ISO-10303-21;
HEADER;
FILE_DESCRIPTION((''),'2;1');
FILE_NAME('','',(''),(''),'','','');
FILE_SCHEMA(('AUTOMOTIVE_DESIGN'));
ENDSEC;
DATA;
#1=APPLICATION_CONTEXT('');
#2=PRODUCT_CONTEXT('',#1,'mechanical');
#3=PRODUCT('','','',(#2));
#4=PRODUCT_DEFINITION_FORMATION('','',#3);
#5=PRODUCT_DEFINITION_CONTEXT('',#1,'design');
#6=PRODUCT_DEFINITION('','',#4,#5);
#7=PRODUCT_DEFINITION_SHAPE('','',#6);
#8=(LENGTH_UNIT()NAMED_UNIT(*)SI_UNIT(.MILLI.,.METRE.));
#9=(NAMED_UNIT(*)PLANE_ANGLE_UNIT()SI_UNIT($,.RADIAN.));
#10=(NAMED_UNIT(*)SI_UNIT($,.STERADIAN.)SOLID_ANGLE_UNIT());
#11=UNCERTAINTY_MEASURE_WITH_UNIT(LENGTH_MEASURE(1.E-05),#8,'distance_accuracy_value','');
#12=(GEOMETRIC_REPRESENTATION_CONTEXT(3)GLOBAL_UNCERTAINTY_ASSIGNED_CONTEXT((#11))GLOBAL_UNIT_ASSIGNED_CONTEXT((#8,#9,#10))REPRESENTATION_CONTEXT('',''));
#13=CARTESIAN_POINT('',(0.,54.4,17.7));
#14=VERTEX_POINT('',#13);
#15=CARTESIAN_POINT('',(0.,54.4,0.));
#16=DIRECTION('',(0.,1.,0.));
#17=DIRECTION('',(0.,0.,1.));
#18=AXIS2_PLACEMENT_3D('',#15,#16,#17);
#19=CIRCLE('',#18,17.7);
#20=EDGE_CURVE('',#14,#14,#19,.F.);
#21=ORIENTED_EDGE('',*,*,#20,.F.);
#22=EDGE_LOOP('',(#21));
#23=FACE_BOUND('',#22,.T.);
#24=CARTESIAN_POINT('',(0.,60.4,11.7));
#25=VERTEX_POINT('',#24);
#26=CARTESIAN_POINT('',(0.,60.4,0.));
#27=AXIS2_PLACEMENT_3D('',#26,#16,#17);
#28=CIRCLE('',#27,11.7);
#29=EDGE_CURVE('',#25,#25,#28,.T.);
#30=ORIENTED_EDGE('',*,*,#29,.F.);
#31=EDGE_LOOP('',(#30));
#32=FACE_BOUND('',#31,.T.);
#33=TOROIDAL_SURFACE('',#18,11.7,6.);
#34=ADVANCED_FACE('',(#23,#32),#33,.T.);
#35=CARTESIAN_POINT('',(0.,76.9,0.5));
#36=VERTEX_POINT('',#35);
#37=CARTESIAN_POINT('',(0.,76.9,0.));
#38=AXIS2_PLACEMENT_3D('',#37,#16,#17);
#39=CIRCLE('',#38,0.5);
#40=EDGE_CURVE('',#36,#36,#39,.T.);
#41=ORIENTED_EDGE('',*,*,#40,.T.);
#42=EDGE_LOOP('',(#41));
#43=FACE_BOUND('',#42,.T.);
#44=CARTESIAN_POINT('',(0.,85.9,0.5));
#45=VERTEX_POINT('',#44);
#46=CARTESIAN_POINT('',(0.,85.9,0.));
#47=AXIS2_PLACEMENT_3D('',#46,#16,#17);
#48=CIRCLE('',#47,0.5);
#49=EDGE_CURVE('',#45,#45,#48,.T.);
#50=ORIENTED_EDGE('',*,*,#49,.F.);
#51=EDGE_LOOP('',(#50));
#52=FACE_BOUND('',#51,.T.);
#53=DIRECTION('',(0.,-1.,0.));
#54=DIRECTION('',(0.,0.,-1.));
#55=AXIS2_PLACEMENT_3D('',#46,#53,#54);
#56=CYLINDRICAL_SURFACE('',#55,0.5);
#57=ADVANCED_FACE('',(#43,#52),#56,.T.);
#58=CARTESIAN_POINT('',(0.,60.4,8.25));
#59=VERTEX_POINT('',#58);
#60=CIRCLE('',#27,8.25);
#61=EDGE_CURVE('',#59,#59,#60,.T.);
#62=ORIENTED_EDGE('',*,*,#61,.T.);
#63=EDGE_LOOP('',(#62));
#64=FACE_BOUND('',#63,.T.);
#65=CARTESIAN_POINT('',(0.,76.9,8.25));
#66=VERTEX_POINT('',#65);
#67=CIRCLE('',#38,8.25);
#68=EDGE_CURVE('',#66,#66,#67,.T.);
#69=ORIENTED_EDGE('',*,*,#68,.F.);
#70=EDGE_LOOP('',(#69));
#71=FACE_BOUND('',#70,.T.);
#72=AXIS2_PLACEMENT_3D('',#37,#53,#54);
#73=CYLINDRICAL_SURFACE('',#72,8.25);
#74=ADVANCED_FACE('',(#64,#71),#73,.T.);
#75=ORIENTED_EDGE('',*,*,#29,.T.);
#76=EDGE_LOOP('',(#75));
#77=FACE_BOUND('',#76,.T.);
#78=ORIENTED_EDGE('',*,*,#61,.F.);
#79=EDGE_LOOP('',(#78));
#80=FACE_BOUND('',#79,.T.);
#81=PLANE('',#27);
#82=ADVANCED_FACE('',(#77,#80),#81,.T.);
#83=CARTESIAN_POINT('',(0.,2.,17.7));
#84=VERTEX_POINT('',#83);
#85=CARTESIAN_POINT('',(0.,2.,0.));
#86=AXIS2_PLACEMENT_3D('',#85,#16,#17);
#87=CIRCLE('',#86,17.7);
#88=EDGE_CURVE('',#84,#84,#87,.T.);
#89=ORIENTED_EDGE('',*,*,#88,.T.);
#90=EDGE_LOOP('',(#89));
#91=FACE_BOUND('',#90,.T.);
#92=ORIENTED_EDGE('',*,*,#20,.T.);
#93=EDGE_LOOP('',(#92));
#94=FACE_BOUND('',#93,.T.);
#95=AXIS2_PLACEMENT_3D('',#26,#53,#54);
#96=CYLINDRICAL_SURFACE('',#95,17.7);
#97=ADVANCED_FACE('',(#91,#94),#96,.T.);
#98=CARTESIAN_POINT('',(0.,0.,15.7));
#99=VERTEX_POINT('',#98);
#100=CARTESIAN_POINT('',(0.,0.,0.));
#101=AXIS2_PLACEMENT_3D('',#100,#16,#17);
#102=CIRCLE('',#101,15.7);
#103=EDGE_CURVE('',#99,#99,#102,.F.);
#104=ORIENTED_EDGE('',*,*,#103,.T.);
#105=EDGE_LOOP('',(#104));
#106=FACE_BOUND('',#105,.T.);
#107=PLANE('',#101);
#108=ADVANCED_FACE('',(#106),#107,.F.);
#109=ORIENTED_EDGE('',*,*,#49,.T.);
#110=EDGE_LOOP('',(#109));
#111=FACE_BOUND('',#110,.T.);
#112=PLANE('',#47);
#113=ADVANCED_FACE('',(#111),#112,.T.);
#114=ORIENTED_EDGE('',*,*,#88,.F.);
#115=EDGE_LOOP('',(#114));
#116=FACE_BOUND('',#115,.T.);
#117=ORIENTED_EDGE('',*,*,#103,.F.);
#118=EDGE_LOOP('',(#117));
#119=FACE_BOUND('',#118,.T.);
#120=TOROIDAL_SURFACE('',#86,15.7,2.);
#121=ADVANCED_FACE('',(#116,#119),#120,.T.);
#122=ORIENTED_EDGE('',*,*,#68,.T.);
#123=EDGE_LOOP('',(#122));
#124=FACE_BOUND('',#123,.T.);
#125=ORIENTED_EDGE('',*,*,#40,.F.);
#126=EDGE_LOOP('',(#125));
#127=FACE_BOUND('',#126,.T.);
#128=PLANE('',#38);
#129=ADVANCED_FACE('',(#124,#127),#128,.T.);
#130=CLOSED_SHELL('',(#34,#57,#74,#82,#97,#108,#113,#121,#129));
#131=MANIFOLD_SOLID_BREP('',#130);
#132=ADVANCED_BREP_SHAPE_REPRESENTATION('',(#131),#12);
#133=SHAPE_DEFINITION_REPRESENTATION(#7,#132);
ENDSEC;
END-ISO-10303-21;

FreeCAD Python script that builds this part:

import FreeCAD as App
import Part
import Sketcher


def edges_at(feature, points):
    """Names of the edges that pass closest to the given points."""
    edges = feature.Shape.Edges
    near = lambda p: min(range(len(edges)), key=lambda i: edges[i].distToShape(Part.Vertex(*p))[0])
    return sorted({f"Edge{near(p) + 1}" for p in points})

doc = App.newDocument("Part")
body = doc.addObject("PartDesign::Body", "Body")

# Sketch on XZ plane
sketch1 = body.newObject("Sketcher::SketchObject", "Sketch")
sketch1.AttachmentSupport = (doc.getObject("XZ_Plane"), [""])
sketch1.MapMode = "FlatFace"
sketch1.addGeometry(Part.Circle(App.Vector(0, 0, 0), App.Vector(0, 0, 1), 18), False)
sketch1.addConstraint(Sketcher.Constraint("Coincident", 0, 3, -1, 1))
sketch1.addConstraint(Sketcher.Constraint("Diameter", 0, 35.4))
pad1 = body.newObject("PartDesign::Pad", "Pad")
pad1.Profile = sketch1
pad1.Length = 60.4
pad1.Reversed = True
doc.recompute()

fillet = body.newObject("PartDesign::Fillet", "Fillet")
fillet.Base = (pad1, edges_at(pad1, [(-17.7, 60.4, 0)]))
fillet.Radius = 6
doc.recompute()

fillet2 = body.newObject("PartDesign::Fillet", "Fillet001")
fillet2.Base = (fillet, edges_at(fillet, [(-17.7, 0, 0)]))
fillet2.Radius = 2

# Sketch on XZ plane
sketch2 = body.newObject("Sketcher::SketchObject", "Sketch001")
sketch2.AttachmentSupport = (doc.getObject("XZ_Plane"), [""])
sketch2.MapMode = "FlatFace"
sketch2.AttachmentOffset = App.Placement(App.Vector(0, 0, -60.4), App.Rotation())
sketch2.addGeometry(Part.Circle(App.Vector(0, 0, 0), App.Vector(0, 0, 1), 8), False)
sketch2.addConstraint(Sketcher.Constraint("Coincident", 0, 3, -1, 1))
sketch2.addConstraint(Sketcher.Constraint("Diameter", 0, 16.5))
pad2 = body.newObject("PartDesign::Pad", "Pad001")
pad2.Profile = sketch2
pad2.Length = 16.5
pad2.Reversed = True

# Sketch on XZ plane
sketch3 = body.newObject("Sketcher::SketchObject", "Sketch002")
sketch3.AttachmentSupport = (doc.getObject("XZ_Plane"), [""])
sketch3.MapMode = "FlatFace"
sketch3.AttachmentOffset = App.Placement(App.Vector(0, 0, -76.9), App.Rotation())
sketch3.addGeometry(Part.Circle(App.Vector(0, 0, 0), App.Vector(0, 0, 1), 0.5), False)
sketch3.addConstraint(Sketcher.Constraint("Coincident", 0, 3, -1, 1))
sketch3.addConstraint(Sketcher.Constraint("Diameter", 0, 1.0))
pad3 = body.newObject("PartDesign::Pad", "Pad002")
pad3.Profile = sketch3
pad3.Length = 9
pad3.Reversed = True

doc.recompute()
